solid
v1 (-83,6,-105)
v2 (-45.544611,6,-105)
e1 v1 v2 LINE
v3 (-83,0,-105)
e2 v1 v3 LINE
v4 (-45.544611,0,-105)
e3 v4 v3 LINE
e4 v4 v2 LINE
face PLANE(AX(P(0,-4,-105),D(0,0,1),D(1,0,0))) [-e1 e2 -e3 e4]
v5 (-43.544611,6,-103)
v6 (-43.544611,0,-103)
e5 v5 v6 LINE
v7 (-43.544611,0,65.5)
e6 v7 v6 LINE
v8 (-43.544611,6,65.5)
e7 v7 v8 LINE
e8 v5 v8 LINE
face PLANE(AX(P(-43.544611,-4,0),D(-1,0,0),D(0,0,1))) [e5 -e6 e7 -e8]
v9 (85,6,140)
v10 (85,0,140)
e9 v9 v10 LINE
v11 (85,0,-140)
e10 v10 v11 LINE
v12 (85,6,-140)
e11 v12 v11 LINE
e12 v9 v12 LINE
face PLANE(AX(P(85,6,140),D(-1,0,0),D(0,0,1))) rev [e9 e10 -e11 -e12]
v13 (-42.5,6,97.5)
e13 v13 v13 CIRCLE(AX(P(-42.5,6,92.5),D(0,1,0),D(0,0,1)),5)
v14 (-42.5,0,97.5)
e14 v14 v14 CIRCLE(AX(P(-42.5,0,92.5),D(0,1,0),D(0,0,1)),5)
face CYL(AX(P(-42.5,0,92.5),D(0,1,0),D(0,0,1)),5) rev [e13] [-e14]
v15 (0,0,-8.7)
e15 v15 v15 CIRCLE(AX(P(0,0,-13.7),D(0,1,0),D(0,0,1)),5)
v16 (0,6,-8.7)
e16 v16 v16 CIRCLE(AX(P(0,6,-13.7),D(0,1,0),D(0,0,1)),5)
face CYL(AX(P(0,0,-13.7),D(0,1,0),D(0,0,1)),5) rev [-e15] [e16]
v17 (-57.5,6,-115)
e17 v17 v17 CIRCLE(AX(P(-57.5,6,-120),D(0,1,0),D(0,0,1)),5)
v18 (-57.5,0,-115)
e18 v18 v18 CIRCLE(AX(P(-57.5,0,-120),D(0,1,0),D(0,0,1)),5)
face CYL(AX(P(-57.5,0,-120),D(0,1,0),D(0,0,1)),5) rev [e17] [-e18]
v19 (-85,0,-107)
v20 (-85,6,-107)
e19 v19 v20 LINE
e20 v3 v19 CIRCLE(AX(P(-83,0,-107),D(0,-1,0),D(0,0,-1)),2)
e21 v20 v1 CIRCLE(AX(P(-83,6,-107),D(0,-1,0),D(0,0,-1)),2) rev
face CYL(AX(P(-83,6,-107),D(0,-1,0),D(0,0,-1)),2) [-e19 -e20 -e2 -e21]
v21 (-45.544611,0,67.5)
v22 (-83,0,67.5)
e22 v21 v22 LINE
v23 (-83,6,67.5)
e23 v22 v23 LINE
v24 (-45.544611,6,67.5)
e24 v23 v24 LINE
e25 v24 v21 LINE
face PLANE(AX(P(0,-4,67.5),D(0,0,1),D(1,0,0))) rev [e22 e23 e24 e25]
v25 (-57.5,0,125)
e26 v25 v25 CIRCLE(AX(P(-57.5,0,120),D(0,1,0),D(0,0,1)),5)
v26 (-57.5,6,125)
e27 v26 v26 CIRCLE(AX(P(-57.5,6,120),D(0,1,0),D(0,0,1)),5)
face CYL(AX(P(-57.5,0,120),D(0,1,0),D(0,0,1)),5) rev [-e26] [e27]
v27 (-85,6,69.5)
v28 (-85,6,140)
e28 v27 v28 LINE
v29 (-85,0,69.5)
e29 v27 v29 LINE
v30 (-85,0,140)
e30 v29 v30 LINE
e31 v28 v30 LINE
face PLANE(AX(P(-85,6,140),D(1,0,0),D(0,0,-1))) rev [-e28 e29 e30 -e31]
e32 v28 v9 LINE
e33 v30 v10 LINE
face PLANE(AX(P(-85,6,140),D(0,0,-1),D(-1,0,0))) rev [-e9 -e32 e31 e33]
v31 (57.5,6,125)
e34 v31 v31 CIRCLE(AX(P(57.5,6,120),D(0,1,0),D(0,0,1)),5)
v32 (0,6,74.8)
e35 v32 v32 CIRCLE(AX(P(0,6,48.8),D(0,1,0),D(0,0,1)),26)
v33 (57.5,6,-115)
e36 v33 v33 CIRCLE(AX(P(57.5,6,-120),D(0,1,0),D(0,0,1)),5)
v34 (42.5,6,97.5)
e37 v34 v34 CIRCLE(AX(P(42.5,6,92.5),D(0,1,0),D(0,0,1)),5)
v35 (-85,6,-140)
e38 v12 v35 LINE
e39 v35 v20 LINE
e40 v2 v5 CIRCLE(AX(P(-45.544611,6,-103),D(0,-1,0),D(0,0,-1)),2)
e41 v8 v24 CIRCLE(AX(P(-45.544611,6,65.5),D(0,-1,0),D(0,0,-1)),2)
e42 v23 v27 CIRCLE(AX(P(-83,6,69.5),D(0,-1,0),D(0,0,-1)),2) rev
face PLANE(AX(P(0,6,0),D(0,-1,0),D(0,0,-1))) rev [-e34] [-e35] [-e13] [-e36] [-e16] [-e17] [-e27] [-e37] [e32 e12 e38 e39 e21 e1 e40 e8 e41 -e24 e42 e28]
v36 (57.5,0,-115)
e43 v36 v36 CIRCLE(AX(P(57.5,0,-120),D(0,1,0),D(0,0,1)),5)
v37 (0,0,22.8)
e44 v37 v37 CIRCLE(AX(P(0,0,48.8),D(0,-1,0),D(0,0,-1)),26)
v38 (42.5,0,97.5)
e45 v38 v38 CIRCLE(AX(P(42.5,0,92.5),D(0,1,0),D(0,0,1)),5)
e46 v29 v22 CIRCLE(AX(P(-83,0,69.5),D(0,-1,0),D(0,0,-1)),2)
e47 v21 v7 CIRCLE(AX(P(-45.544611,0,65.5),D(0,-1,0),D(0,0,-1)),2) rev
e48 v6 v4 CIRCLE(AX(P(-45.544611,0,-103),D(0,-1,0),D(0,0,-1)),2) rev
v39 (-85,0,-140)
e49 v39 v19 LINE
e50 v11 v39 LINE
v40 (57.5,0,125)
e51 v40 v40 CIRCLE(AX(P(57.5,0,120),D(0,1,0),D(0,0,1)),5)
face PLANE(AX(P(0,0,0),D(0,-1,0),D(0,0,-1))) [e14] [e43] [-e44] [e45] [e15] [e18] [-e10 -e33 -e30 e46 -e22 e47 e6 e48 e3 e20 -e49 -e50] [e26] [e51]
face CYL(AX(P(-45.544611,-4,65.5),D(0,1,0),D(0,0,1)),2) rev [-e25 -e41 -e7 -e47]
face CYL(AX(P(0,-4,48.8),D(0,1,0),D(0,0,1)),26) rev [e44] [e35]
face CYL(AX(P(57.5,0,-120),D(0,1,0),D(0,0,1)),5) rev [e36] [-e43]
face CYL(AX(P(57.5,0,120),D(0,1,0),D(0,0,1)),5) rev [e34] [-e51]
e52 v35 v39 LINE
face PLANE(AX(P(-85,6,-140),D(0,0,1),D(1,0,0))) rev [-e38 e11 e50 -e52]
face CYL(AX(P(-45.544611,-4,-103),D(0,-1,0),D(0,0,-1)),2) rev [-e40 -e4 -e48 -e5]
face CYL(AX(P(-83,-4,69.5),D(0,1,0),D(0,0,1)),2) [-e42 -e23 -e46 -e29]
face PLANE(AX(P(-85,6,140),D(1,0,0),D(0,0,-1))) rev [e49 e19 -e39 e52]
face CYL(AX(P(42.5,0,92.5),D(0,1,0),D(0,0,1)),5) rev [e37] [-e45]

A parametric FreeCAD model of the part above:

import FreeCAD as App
import Part
import Sketcher
Q = App.Units.Quantity


def edges_at(feature, points):
    """Names of the edges that pass closest to the given points."""
    edges = feature.Shape.Edges
    near = lambda p: min(range(len(edges)), key=lambda i: edges[i].distToShape(Part.Vertex(*p))[0])
    return sorted({f"Edge{near(p) + 1}" for p in points})

doc = App.newDocument("Part")
body = doc.addObject("PartDesign::Body", "Body")

# Sketch on XZ plane
sketch1 = body.newObject("Sketcher::SketchObject", "Sketch")
sketch1.AttachmentSupport = (doc.getObject("XZ_Plane"), [""])
sketch1.MapMode = "FlatFace"
sketch1.addGeometry([
    Part.LineSegment(App.Vector(-85, -140, 0), App.Vector(-85, 140, 0)),
    Part.LineSegment(App.Vector(-85, 140, 0), App.Vector(85, 140, 0)),
    Part.LineSegment(App.Vector(85, 140, 0), App.Vector(85, -140, 0)),
    Part.LineSegment(App.Vector(85, -140, 0), App.Vector(-85, -140, 0)),
], False)
sketch1.addConstraint([
    Sketcher.Constraint("Coincident", 0, 2, 1, 1),
    Sketcher.Constraint("Coincident", 1, 2, 2, 1),
    Sketcher.Constraint("Coincident", 2, 2, 3, 1),
    Sketcher.Constraint("Coincident", 3, 2, 0, 1),
    Sketcher.Constraint("Vertical", 0),
    Sketcher.Constraint("Horizontal", 1),
    Sketcher.Constraint("Vertical", 2),
    Sketcher.Constraint("Horizontal", 3),
    Sketcher.Constraint("Symmetric", 0, 2, 2, 2, -1, 1),
    Sketcher.Constraint("DistanceX", 1, 1, 1, 2, Q("170 mm")),
    Sketcher.Constraint("DistanceY", 0, 1, 0, 2, Q("280 mm")),
])
pad1 = body.newObject("PartDesign::Pad", "Pad")
pad1.Profile = sketch1
pad1.Length = 6
pad1.Reversed = True

# Sketch on XZ plane
sketch2 = body.newObject("Sketcher::SketchObject", "Sketch001")
sketch2.AttachmentSupport = (doc.getObject("XZ_Plane"), [""])
sketch2.MapMode = "FlatFace"
sketch2.AttachmentOffset = App.Placement(App.Vector(0, 0, -6), App.Rotation())
sketch2.addGeometry([
    Part.Circle(App.Vector(-58, -120, 0), App.Vector(0, 0, 1), 5),  # 0
    Part.Circle(App.Vector(58, -120, 0), App.Vector(0, 0, 1), 5),  # 1
    Part.Circle(App.Vector(0, -14, 0), App.Vector(0, 0, 1), 5),  # 2
    Part.Circle(App.Vector(-58, 120, 0), App.Vector(0, 0, 1), 5),  # 3
    Part.Circle(App.Vector(58, 120, 0), App.Vector(0, 0, 1), 5),  # 4
    Part.Circle(App.Vector(-42, 92, 0), App.Vector(0, 0, 1), 5),  # 5
    Part.Circle(App.Vector(42, 92, 0), App.Vector(0, 0, 1), 5),  # 6
], False)
sketch2.addConstraint([
    Sketcher.Constraint("Equal", 0, 1),
    Sketcher.Constraint("Equal", 1, 2),
    Sketcher.Constraint("Equal", 2, 3),
    Sketcher.Constraint("Equal", 3, 4),
    Sketcher.Constraint("Equal", 4, 5),
    Sketcher.Constraint("Equal", 5, 6),
    Sketcher.Constraint("Symmetric", 1, 3, 3, 3, -1, 1),
    Sketcher.Constraint("Symmetric", 0, 3, 4, 3, -1, 1),
    Sketcher.Constraint("Symmetric", 0, 3, 1, 3, -2),
    Sketcher.Constraint("Symmetric", 5, 3, 6, 3, -2),
    Sketcher.Constraint("PointOnObject", 2, 3, -2),
    Sketcher.Constraint("Diameter", 0, Q("10 mm")),
    Sketcher.Constraint("DistanceY", 0, 3, -1, 1, Q("120 mm")),
    Sketcher.Constraint("DistanceX", 0, 3, 1, 3, Q("115 mm")),
    Sketcher.Constraint("DistanceX", 3, 3, 5, 3, Q("15 mm")),
    Sketcher.Constraint("DistanceY", 2, 3, -1, 1, Q("13.7 mm")),
    Sketcher.Constraint("DistanceY", -1, 1, 5, 3, Q("92.5 mm")),
])
pocket1 = body.newObject("PartDesign::Pocket", "Pocket")
pocket1.Profile = sketch2
pocket1.Length = 6
pocket1.Reversed = True

# Sketch on XZ plane
sketch3 = body.newObject("Sketcher::SketchObject", "Sketch002")
sketch3.AttachmentSupport = (doc.getObject("XZ_Plane"), [""])
sketch3.MapMode = "FlatFace"
sketch3.AttachmentOffset = App.Placement(App.Vector(0, 0, -6), App.Rotation())
sketch3.addGeometry([
    Part.LineSegment(App.Vector(-85, -105, 0), App.Vector(-85, 68, 0)),
    Part.LineSegment(App.Vector(-85, 68, 0), App.Vector(-44, 68, 0)),
    Part.LineSegment(App.Vector(-44, 68, 0), App.Vector(-44, -105, 0)),
    Part.LineSegment(App.Vector(-44, -105, 0), App.Vector(-85, -105, 0)),
], False)
sketch3.addConstraint([
    Sketcher.Constraint("Coincident", 0, 2, 1, 1),
    Sketcher.Constraint("Coincident", 1, 2, 2, 1),
    Sketcher.Constraint("Coincident", 2, 2, 3, 1),
    Sketcher.Constraint("Coincident", 3, 2, 0, 1),
    Sketcher.Constraint("Vertical", 0),
    Sketcher.Constraint("Horizontal", 1),
    Sketcher.Constraint("Vertical", 2),
    Sketcher.Constraint("Horizontal", 3),
    Sketcher.Constraint("DistanceY", 0, 1, 0, 2, Q("172.5 mm")),
    Sketcher.Constraint("DistanceX", 0, 2, -1, 1, Q("85 mm")),
    Sketcher.Constraint("DistanceY", 2, 2, -1, 1, Q("105 mm")),
    Sketcher.Constraint("DistanceX", 1, 1, 1, 2, Q("41.455389 mm")),
])
pocket2 = body.newObject("PartDesign::Pocket", "Pocket001")
pocket2.Profile = sketch3
pocket2.Length = 10
pocket2.Reversed = True
doc.recompute()

fillet = body.newObject("PartDesign::Fillet", "Fillet")
fillet.Base = (pocket2, edges_at(pocket2, [
    (-43.545, 3, -105),
    (-43.545, 3, 67.5),
    (-85, 3, 67.5),
    (-85, 3, -105),
]))
fillet.Radius = 2

# Sketch on XZ plane
sketch4 = body.newObject("Sketcher::SketchObject", "Sketch003")
sketch4.AttachmentSupport = (doc.getObject("XZ_Plane"), [""])
sketch4.MapMode = "FlatFace"
sketch4.AttachmentOffset = App.Placement(App.Vector(0, 0, -6), App.Rotation())
sketch4.addGeometry(Part.Circle(App.Vector(0, 49, 0), App.Vector(0, 0, 1), 26), False)
sketch4.addConstraint([
    Sketcher.Constraint("PointOnObject", 0, 3, -2),
    Sketcher.Constraint("Diameter", 0, Q("52 mm")),
    Sketcher.Constraint("DistanceY", -1, 1, 0, 3, Q("48.8 mm")),
])
pocket3 = body.newObject("PartDesign::Pocket", "Pocket002")
pocket3.Profile = sketch4
pocket3.Length = 10
pocket3.Reversed = True

doc.recompute()
